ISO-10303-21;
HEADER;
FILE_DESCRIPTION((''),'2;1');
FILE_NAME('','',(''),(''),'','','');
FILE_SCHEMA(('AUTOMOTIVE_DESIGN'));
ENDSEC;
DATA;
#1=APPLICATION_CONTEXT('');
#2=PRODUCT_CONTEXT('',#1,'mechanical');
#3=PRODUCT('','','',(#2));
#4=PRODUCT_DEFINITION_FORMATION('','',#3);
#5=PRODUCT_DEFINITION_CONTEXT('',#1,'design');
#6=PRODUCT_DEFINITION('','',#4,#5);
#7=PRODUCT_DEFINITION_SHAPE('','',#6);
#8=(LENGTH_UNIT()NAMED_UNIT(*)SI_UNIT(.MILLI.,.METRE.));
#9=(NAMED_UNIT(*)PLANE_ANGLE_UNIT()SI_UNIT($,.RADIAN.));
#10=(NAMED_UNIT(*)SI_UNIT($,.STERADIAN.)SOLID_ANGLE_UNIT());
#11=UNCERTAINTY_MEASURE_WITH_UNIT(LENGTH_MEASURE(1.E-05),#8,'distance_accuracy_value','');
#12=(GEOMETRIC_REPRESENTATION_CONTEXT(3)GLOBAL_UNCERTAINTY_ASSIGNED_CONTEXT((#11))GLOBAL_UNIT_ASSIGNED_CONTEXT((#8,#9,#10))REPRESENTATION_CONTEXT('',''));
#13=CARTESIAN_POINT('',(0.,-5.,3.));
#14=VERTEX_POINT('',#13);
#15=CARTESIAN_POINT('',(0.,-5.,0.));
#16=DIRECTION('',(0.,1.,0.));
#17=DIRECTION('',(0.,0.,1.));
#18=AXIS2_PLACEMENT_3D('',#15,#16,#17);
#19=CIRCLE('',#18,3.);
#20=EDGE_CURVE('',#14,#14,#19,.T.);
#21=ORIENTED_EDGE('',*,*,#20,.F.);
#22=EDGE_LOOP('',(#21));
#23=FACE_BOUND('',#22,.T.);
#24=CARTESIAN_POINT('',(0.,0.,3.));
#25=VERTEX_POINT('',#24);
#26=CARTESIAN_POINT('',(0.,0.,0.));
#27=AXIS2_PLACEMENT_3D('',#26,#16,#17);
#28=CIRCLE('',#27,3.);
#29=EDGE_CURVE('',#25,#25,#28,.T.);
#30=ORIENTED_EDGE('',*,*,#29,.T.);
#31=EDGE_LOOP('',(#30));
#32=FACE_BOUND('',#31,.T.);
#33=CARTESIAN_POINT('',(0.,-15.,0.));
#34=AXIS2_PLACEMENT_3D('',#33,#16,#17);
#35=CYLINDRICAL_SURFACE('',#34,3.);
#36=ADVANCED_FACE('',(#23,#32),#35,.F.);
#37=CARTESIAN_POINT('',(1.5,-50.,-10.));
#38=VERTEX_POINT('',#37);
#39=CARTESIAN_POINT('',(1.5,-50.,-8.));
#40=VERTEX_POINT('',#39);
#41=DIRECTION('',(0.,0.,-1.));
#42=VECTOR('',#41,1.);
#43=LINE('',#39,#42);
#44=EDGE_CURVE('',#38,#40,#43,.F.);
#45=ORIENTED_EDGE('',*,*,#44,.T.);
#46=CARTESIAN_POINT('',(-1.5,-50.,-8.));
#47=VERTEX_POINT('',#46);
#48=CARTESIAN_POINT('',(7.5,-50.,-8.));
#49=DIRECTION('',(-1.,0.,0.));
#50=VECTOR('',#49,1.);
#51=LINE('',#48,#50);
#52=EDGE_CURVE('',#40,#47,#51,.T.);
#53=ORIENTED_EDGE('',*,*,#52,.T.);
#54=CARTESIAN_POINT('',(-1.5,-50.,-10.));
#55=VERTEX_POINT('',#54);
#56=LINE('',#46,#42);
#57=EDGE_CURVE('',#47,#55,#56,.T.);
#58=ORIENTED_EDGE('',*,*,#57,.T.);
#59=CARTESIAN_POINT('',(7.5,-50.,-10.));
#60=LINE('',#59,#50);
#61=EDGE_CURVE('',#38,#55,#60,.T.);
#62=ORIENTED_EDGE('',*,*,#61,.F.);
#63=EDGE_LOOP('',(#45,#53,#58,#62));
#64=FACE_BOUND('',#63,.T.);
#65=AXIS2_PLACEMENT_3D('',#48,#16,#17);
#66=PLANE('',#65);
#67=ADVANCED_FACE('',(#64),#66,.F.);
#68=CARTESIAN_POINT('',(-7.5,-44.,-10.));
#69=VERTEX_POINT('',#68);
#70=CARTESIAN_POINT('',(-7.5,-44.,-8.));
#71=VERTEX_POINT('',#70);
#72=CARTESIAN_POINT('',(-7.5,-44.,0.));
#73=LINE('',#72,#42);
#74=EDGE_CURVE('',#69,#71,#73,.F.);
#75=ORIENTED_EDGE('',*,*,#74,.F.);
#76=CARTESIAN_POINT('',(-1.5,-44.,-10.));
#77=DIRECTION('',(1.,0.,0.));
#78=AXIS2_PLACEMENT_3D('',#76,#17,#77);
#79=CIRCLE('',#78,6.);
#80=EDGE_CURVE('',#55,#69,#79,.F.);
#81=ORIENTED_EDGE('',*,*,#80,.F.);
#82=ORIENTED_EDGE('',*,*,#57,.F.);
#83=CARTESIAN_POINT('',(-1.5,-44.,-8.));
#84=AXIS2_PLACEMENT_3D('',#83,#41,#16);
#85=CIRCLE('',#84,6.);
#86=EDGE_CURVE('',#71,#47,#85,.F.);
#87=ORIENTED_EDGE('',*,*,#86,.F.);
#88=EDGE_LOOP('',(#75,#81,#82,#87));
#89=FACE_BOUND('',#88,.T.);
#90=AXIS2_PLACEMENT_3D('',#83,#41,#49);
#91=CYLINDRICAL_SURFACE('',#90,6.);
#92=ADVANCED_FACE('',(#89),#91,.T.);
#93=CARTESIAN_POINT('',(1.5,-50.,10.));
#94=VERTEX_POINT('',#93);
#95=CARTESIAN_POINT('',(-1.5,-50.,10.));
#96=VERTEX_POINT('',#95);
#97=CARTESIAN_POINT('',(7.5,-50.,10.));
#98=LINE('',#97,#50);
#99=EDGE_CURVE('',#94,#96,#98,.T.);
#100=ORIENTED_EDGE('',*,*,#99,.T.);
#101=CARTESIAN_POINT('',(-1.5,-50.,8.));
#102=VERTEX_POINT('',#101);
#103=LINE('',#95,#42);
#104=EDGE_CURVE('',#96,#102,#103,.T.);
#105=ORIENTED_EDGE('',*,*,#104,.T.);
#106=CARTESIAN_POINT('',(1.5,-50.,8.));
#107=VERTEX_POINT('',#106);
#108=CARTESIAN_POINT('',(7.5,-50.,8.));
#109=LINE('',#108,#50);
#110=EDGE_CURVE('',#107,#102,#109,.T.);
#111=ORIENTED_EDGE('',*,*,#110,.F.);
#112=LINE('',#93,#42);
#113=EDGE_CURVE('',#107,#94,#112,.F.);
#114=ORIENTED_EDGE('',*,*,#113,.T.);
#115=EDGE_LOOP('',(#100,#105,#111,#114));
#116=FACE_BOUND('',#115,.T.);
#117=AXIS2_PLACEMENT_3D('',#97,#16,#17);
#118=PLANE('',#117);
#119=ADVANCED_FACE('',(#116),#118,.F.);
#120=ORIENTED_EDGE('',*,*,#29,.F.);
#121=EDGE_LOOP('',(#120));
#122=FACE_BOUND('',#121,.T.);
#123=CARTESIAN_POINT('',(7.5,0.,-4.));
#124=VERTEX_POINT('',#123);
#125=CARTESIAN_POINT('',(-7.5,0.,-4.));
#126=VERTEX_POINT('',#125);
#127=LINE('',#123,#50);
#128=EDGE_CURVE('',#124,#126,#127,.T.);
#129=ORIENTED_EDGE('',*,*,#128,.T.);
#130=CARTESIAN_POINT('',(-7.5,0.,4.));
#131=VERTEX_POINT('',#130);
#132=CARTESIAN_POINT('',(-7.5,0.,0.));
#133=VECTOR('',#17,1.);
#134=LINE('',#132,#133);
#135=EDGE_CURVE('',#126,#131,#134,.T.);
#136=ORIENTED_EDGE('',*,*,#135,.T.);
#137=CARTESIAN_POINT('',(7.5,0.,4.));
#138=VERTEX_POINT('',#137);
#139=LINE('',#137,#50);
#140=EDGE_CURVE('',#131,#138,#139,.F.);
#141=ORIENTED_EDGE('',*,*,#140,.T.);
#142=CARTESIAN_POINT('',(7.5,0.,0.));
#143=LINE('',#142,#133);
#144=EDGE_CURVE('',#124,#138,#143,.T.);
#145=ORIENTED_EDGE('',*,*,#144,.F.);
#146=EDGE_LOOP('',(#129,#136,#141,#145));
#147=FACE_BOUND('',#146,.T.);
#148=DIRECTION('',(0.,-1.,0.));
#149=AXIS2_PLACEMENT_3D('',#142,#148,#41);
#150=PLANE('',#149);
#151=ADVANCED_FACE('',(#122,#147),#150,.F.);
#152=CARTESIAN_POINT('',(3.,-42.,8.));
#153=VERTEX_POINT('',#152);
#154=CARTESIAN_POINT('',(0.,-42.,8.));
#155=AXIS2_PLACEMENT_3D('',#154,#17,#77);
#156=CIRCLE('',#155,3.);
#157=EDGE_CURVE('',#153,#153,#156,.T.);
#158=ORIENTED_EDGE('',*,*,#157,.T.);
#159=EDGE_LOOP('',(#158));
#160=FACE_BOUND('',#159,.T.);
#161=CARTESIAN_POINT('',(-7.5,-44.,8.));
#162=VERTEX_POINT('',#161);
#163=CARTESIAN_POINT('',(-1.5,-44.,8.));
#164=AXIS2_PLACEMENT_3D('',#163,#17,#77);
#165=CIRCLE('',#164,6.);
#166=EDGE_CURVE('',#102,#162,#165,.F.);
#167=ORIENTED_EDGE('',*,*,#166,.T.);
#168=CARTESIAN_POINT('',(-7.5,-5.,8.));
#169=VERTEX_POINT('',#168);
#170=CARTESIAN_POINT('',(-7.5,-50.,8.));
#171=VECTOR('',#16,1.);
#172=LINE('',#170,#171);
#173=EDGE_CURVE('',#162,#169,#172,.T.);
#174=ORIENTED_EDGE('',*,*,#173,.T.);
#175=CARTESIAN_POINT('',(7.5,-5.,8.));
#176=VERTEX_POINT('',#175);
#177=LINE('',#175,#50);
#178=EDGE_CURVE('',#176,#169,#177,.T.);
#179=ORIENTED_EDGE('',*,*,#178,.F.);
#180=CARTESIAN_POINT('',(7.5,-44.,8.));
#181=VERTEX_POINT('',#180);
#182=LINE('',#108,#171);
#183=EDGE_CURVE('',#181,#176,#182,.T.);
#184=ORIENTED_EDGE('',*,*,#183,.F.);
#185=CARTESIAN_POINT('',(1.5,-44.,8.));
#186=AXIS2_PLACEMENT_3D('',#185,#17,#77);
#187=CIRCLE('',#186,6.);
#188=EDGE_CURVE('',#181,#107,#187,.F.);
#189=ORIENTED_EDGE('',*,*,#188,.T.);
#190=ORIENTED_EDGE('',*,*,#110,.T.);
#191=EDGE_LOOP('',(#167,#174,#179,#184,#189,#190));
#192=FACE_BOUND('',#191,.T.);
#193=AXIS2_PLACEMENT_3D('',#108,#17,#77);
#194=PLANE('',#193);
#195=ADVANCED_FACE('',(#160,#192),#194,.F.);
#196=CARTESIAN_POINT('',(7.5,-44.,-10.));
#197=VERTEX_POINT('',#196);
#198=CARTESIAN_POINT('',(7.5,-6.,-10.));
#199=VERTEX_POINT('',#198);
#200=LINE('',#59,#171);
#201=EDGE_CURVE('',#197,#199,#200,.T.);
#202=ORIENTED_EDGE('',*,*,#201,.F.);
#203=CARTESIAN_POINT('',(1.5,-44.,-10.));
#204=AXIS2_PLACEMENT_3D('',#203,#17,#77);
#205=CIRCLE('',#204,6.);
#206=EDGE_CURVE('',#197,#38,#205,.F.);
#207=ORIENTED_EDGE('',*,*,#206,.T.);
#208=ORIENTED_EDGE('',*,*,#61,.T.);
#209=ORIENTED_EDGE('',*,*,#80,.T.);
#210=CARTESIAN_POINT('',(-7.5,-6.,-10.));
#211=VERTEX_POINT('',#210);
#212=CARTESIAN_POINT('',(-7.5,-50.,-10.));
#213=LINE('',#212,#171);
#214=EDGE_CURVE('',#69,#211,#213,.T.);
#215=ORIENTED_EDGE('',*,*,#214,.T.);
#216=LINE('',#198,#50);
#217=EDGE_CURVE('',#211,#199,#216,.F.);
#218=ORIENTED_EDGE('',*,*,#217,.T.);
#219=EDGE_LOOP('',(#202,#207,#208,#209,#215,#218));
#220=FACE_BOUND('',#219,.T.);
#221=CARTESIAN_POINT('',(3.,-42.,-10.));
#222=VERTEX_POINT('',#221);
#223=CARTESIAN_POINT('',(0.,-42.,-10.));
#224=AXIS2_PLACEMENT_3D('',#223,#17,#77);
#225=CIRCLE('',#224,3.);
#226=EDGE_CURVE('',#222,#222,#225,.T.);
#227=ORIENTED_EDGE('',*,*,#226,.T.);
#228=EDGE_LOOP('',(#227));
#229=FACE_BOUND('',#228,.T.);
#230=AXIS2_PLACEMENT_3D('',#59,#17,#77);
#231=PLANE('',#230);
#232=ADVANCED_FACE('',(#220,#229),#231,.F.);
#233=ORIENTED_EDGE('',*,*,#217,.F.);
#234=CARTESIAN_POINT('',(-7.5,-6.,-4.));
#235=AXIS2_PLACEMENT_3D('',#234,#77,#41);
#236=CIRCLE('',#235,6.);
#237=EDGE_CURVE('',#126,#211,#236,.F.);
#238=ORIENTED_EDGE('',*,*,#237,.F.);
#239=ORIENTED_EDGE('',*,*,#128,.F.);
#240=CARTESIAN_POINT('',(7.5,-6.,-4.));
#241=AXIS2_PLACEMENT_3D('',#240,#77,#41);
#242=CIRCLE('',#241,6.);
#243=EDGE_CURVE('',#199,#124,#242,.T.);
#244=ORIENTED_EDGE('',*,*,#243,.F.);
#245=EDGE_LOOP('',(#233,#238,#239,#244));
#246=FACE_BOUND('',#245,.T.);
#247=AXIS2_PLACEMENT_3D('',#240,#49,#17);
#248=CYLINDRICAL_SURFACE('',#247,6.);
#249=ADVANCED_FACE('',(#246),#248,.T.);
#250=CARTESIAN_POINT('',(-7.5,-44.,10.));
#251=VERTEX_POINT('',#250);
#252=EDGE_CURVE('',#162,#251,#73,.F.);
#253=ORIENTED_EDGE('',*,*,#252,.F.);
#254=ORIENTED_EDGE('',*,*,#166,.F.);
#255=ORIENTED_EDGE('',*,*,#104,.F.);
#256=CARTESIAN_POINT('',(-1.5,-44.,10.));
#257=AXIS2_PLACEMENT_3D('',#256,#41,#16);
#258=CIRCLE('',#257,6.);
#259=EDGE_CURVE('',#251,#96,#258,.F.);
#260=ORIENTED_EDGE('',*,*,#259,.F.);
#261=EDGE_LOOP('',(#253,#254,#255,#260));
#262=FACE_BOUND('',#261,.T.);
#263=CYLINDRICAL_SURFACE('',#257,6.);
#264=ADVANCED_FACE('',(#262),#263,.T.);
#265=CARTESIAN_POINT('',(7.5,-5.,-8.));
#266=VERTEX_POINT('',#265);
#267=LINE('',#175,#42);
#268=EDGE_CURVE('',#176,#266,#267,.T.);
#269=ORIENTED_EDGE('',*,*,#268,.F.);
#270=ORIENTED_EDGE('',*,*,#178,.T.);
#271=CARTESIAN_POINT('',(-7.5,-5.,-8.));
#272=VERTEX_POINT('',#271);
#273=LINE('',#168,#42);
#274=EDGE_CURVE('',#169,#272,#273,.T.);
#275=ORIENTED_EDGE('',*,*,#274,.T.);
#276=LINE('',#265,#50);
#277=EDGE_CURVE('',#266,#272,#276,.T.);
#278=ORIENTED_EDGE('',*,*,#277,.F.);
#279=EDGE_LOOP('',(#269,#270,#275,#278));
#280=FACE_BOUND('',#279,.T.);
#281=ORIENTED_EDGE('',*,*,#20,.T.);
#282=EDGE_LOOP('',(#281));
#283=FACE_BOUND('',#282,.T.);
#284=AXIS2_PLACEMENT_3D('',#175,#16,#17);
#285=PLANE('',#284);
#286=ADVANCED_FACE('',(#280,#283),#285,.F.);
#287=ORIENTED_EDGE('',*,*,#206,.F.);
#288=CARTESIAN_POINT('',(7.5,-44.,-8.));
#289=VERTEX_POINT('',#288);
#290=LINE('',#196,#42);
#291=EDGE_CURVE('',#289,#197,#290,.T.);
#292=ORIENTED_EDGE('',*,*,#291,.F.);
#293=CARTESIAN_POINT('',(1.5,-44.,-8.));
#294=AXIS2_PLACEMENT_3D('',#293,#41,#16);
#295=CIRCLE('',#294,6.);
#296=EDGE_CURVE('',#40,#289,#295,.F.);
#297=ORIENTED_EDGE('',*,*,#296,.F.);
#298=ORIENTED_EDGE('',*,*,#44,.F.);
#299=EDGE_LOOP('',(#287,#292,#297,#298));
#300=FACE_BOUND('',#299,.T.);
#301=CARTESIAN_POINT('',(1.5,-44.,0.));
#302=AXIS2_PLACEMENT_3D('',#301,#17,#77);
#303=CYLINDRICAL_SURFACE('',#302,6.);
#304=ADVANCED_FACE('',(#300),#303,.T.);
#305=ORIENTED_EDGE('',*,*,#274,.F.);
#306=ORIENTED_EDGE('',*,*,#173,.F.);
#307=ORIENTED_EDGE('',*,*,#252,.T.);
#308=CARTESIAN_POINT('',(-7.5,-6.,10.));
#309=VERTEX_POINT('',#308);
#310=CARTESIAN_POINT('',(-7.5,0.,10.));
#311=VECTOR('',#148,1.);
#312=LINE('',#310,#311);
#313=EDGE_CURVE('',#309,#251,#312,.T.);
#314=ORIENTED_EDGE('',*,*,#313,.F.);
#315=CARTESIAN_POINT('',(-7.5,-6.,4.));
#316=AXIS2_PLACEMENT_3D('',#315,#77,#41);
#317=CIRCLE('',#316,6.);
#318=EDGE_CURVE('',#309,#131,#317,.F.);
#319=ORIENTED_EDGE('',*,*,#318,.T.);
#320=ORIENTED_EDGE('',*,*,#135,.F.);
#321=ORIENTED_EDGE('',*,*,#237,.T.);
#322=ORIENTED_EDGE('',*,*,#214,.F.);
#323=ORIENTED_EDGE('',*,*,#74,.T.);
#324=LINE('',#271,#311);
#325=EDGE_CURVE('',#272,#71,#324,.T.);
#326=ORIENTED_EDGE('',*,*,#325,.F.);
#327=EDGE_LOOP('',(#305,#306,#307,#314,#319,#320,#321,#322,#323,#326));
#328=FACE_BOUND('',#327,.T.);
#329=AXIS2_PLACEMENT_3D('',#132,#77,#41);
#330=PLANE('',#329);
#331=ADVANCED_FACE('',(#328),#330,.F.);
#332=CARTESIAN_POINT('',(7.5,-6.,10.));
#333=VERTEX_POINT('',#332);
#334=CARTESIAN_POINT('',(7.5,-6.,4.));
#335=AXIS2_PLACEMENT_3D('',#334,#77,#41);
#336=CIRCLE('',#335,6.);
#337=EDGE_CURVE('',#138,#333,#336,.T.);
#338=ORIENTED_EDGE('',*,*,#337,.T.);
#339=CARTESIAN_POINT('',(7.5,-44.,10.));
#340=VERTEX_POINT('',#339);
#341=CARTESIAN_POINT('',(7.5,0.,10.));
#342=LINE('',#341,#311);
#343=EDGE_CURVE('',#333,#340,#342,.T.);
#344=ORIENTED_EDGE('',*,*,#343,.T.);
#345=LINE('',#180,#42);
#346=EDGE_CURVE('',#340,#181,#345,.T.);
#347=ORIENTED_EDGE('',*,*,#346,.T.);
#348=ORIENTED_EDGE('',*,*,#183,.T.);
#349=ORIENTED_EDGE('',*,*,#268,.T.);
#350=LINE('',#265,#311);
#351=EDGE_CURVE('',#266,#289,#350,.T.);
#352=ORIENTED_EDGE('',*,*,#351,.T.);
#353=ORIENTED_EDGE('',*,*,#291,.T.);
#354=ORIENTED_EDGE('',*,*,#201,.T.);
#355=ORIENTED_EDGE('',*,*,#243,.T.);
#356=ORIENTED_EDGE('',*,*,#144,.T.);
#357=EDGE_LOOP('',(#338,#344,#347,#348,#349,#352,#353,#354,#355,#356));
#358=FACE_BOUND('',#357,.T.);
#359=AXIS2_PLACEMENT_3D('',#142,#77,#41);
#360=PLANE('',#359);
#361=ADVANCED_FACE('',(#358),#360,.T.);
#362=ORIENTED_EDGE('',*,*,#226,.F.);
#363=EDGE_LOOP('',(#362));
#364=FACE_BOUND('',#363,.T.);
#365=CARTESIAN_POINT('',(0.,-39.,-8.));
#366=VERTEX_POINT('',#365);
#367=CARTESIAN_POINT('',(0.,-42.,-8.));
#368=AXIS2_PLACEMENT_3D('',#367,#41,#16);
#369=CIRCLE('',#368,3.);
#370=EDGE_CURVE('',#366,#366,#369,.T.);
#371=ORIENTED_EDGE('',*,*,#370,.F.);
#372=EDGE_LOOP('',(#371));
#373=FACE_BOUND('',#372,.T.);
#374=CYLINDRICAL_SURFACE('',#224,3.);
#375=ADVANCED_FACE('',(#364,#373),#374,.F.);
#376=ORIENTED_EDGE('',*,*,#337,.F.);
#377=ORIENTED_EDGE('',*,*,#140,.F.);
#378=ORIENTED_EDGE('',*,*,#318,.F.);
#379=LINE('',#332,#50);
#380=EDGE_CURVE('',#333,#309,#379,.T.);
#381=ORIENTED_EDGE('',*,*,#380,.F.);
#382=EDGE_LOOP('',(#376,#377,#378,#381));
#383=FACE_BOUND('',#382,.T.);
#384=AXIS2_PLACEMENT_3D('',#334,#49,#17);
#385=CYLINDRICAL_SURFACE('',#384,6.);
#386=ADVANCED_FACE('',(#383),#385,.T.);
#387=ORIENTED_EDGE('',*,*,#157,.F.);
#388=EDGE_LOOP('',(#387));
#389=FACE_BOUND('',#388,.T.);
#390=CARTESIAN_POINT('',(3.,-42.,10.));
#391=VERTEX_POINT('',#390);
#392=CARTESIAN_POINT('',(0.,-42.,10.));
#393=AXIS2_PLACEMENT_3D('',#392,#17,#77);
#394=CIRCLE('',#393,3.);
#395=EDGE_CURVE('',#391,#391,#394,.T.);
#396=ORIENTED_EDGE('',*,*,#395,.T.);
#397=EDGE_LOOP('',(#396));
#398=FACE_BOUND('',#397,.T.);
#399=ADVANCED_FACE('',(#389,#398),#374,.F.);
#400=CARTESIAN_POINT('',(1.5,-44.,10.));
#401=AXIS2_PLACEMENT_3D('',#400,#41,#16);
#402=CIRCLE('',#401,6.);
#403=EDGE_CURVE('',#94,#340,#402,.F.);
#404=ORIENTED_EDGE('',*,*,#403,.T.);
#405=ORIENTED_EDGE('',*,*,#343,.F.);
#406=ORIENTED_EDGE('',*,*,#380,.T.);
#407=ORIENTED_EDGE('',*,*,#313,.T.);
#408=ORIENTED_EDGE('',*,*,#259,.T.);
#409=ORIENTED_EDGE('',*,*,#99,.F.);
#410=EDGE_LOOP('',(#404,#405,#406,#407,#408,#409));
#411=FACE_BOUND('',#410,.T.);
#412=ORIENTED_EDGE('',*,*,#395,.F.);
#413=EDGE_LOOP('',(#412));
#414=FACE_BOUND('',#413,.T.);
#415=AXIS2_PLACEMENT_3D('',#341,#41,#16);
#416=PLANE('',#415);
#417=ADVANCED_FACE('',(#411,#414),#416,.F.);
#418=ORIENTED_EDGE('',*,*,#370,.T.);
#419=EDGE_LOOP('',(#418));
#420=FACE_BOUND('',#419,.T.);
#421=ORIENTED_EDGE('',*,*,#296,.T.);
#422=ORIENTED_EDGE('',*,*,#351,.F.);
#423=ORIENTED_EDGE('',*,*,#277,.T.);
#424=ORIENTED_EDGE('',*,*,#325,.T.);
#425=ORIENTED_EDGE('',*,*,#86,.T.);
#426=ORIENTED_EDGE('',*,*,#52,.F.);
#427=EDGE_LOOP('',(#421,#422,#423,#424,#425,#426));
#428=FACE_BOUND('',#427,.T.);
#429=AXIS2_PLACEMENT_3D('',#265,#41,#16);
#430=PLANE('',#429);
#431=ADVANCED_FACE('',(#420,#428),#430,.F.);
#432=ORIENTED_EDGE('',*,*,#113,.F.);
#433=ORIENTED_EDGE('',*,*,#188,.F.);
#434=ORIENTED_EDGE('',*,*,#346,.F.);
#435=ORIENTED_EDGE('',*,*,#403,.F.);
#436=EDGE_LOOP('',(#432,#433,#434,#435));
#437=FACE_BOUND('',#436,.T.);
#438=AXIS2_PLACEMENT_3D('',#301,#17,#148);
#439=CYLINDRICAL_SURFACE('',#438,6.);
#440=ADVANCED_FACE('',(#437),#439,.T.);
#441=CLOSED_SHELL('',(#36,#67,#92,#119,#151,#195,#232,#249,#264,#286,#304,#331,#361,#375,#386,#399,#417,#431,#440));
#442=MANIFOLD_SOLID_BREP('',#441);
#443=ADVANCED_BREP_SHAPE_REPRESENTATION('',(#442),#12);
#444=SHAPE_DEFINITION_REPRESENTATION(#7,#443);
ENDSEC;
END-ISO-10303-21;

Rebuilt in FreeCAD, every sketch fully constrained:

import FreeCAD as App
import Part
import Sketcher
Q = App.Units.Quantity


def edges_at(feature, points):
    """Names of the edges that pass closest to the given points."""
    edges = feature.Shape.Edges
    near = lambda p: min(range(len(edges)), key=lambda i: edges[i].distToShape(Part.Vertex(*p))[0])
    return sorted({f"Edge{near(p) + 1}" for p in points})


def add_polygon(sketch, points):
    """Adds a closed chain of lines whose ends are joined by coincident constraints."""
    first, n = sketch.GeometryCount, len(points)
    for a, b in zip(points, points[1:] + points[:1]):
        sketch.addGeometry(Part.LineSegment(App.Vector(*a, 0), App.Vector(*b, 0)), False)
    for i in range(n):
        sketch.addConstraint(Sketcher.Constraint("Coincident", first + i, 2, first + (i + 1) % n, 1))

doc = App.newDocument("Part")
body = doc.addObject("PartDesign::Body", "Body")

# Sketch on YZ plane
sketch1 = body.newObject("Sketcher::SketchObject", "Sketch")
sketch1.AttachmentSupport = (doc.getObject("YZ_Plane"), [""])
sketch1.MapMode = "FlatFace"
add_polygon(sketch1, [(0, 10), (-50, 10), (-50, 8), (-5, 8), (-5, -8), (-50, -8), (-50, -10), (0, -10)])  # lines 0-7
sketch1.addConstraint([
    Sketcher.Constraint("Horizontal", 0),
    Sketcher.Constraint("Vertical", 1),
    Sketcher.Constraint("Horizontal", 2),
    Sketcher.Constraint("Vertical", 3),
    Sketcher.Constraint("Horizontal", 4),
    Sketcher.Constraint("Vertical", 5),
    Sketcher.Constraint("Horizontal", 6),
    Sketcher.Constraint("Vertical", 7),
    Sketcher.Constraint("Symmetric", 6, 2, 7, 2, -1, 1),
    Sketcher.Constraint("Symmetric", 1, 2, 4, 2, -1),
    Sketcher.Constraint("DistanceX", 0, 2, 0, 1, Q("50 mm")),
    Sketcher.Constraint("DistanceX", 2, 1, 2, 2, Q("45 mm")),
    Sketcher.Constraint("DistanceY", 1, 2, 1, 1, Q("2 mm")),
    Sketcher.Constraint("DistanceY", 3, 2, 3, 1, Q("16 mm")),
])
pad1 = body.newObject("PartDesign::Pad", "Pad")
pad1.Profile = sketch1
pad1.Length = 15
pad1.Midplane = True

# Sketch on XZ plane
sketch2 = body.newObject("Sketcher::SketchObject", "Sketch001")
sketch2.AttachmentSupport = (doc.getObject("XZ_Plane"), [""])
sketch2.MapMode = "FlatFace"
sketch2.addGeometry(Part.Circle(App.Vector(0, 0, 0), App.Vector(0, 0, 1), 3), False)
sketch2.addConstraint([
    Sketcher.Constraint("Coincident", 0, 3, -1, 1),
    Sketcher.Constraint("Diameter", 0, Q("6 mm")),
])
pocket1 = body.newObject("PartDesign::Pocket", "Pocket")
pocket1.Profile = sketch2
pocket1.Length = 15
pocket1.Reversed = True

# Sketch on XY plane
sketch3 = body.newObject("Sketcher::SketchObject", "Sketch002")
sketch3.AttachmentSupport = (doc.getObject("XY_Plane"), [""])
sketch3.MapMode = "FlatFace"
sketch3.AttachmentOffset = App.Placement(App.Vector(0, 0, 10), App.Rotation())
sketch3.addGeometry(Part.Circle(App.Vector(0, -42, 0), App.Vector(0, 0, 1), 3), False)
sketch3.addConstraint([
    Sketcher.Constraint("PointOnObject", 0, 3, -2),
    Sketcher.Constraint("Diameter", 0, Q("6 mm")),
    Sketcher.Constraint("DistanceY", 0, 3, -1, 1, Q("42 mm")),
])
pocket2 = body.newObject("PartDesign::Pocket", "Pocket001")
pocket2.Profile = sketch3
pocket2.Type = "ThroughAll"
doc.recompute()

fillet = body.newObject("PartDesign::Fillet", "Fillet")
fillet.Base = (pocket2, edges_at(pocket2, [
    (-7.5, -50, 9),
    (0, 0, -10),
    (0, 0, 10),
    (7.5, -50, 9),
    (7.5, -50, -9),
    (-7.5, -50, -9),
]))
fillet.Radius = 6

doc.recompute()
